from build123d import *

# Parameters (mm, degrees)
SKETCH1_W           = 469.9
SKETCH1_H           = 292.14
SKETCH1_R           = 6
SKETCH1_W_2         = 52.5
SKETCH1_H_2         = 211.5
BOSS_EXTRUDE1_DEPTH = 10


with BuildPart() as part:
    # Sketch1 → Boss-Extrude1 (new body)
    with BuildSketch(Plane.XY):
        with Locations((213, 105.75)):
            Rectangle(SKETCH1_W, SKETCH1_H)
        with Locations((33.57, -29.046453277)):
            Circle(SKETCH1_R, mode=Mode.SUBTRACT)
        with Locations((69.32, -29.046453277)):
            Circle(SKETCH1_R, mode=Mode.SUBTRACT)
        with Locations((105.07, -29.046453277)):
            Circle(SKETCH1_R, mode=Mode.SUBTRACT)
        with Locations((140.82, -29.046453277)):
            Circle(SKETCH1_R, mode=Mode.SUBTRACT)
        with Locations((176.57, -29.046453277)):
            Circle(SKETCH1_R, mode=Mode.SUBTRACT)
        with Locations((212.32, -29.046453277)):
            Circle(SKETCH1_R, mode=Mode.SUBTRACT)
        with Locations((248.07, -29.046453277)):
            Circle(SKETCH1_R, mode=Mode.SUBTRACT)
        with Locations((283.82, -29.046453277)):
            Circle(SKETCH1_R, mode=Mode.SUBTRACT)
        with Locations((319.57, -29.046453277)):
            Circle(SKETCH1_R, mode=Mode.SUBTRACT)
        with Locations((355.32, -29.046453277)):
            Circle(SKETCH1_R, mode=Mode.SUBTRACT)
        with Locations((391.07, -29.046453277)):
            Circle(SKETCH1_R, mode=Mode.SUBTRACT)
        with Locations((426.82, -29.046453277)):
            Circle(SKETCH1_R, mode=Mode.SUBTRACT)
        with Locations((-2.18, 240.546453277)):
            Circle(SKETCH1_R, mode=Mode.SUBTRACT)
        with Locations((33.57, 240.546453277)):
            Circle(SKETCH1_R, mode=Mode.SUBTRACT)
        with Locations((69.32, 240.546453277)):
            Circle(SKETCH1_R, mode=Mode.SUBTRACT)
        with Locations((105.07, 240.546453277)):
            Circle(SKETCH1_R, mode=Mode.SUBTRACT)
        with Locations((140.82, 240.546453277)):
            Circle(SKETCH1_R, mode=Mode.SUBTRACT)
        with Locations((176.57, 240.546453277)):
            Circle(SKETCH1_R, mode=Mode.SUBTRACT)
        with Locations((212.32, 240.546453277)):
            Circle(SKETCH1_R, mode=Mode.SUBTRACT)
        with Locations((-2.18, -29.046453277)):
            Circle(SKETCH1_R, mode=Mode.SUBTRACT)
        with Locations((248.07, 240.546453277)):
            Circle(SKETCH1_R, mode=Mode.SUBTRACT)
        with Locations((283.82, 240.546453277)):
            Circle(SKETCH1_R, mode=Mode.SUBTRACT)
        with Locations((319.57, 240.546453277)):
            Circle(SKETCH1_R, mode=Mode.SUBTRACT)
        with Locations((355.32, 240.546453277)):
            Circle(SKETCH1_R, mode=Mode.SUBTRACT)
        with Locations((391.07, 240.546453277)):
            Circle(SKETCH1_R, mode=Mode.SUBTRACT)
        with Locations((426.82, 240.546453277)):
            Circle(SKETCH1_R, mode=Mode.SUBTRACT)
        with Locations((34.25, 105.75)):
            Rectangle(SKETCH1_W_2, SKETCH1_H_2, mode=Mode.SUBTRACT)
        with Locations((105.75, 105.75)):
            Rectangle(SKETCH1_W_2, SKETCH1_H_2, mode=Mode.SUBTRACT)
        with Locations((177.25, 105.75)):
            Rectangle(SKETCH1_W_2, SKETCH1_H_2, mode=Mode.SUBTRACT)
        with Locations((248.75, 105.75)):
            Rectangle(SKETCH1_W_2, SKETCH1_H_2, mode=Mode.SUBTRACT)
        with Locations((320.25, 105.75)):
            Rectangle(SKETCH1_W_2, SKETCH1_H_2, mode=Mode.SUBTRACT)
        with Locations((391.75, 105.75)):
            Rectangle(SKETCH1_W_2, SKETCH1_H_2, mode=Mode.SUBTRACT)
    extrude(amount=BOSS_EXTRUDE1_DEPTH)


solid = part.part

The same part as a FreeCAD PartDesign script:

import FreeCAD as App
import Part
import Sketcher
from FreeCAD import Vector
Q = App.Units.Quantity

doc = App.newDocument("Part")
params = doc.addObject("Spreadsheet::Sheet", "Params")
for row, (alias, value) in enumerate([
    ("sketch1_diameter", "12 mm"),
    ("sketch1_width", "469.9 mm"),
    ("sketch1_width2", "52.5 mm"),
    ("sketch1_height", "211.5 mm"),
    ("sketch1_height2", "292.14 mm"),
    ("pad1_length", "10 mm"),
], start=1):
    params.set(f"A{row}", alias)
    params.set(f"B{row}", "=" + value)
    params.setAlias(f"B{row}", alias)

body = doc.addObject("PartDesign::Body", "Body")

# Sketch on XY plane
sketch1 = body.newObject("Sketcher::SketchObject", "Sketch")
sketch1.AttachmentSupport = (doc.getObject("XY_Plane"), [""])
sketch1.MapMode = "FlatFace"
sketch1.addGeometry(Part.LineSegment(Vector(-21.95, 251.82, 0), Vector(-21.95, -40.32, 0)), False)
sketch1.addGeometry(Part.LineSegment(Vector(-21.95, -40.32, 0), Vector(447.95, -40.32, 0)), False)
sketch1.addGeometry(Part.LineSegment(Vector(447.95, -40.32, 0), Vector(447.95, 251.82, 0)), False)
sketch1.addGeometry(Part.LineSegment(Vector(447.95, 251.82, 0), Vector(-21.95, 251.82, 0)), False)
sketch1.addGeometry(Part.Circle(Vector(-2.18, -29.046453, 0), Vector(0, 0, 1), 6), False)
sketch1.addGeometry(Part.Circle(Vector(33.57, -29.046453, 0), Vector(0, 0, 1), 6), False)
sketch1.addGeometry(Part.Circle(Vector(69.32, -29.046453, 0), Vector(0, 0, 1), 6), False)
sketch1.addGeometry(Part.Circle(Vector(105.07, -29.046453, 0), Vector(0, 0, 1), 6), False)
sketch1.addGeometry(Part.Circle(Vector(140.82, -29.046453, 0), Vector(0, 0, 1), 6), False)
sketch1.addGeometry(Part.Circle(Vector(176.57, -29.046453, 0), Vector(0, 0, 1), 6), False)
sketch1.addGeometry(Part.Circle(Vector(212.32, -29.046453, 0), Vector(0, 0, 1), 6), False)
sketch1.addGeometry(Part.Circle(Vector(248.07, -29.046453, 0), Vector(0, 0, 1), 6), False)
sketch1.addGeometry(Part.Circle(Vector(283.82, -29.046453, 0), Vector(0, 0, 1), 6), False)
sketch1.addGeometry(Part.Circle(Vector(319.57, -29.046453, 0), Vector(0, 0, 1), 6), False)
sketch1.addGeometry(Part.Circle(Vector(355.32, -29.046453, 0), Vector(0, 0, 1), 6), False)
sketch1.addGeometry(Part.Circle(Vector(391.07, -29.046453, 0), Vector(0, 0, 1), 6), False)
sketch1.addGeometry(Part.Circle(Vector(426.82, -29.046453, 0), Vector(0, 0, 1), 6), False)
sketch1.addGeometry(Part.LineSegment(Vector(60.5, 0, 0), Vector(8, 0, 0)), False)
sketch1.addGeometry(Part.LineSegment(Vector(8, 0, 0), Vector(8, 211.5, 0)), False)
sketch1.addGeometry(Part.LineSegment(Vector(8, 211.5, 0), Vector(60.5, 211.5, 0)), False)
sketch1.addGeometry(Part.LineSegment(Vector(60.5, 211.5, 0), Vector(60.5, 0, 0)), False)
sketch1.addGeometry(Part.LineSegment(Vector(132, 0, 0), Vector(79.5, 0, 0)), False)
sketch1.addGeometry(Part.LineSegment(Vector(79.5, 0, 0), Vector(79.5, 211.5, 0)), False)
sketch1.addGeometry(Part.LineSegment(Vector(79.5, 211.5, 0), Vector(132, 211.5, 0)), False)
sketch1.addGeometry(Part.LineSegment(Vector(132, 211.5, 0), Vector(132, 0, 0)), False)
sketch1.addGeometry(Part.LineSegment(Vector(203.5, 0, 0), Vector(151, 0, 0)), False)
sketch1.addGeometry(Part.LineSegment(Vector(151, 0, 0), Vector(151, 211.5, 0)), False)
sketch1.addGeometry(Part.LineSegment(Vector(151, 211.5, 0), Vector(203.5, 211.5, 0)), False)
sketch1.addGeometry(Part.LineSegment(Vector(203.5, 211.5, 0), Vector(203.5, 0, 0)), False)
sketch1.addGeometry(Part.Circle(Vector(-2.18, 240.546453, 0), Vector(0, 0, 1), 6), False)
sketch1.addGeometry(Part.Circle(Vector(33.57, 240.546453, 0), Vector(0, 0, 1), 6), False)
sketch1.addGeometry(Part.Circle(Vector(69.32, 240.546453, 0), Vector(0, 0, 1), 6), False)
sketch1.addGeometry(Part.Circle(Vector(105.07, 240.546453, 0), Vector(0, 0, 1), 6), False)
sketch1.addGeometry(Part.Circle(Vector(140.82, 240.546453, 0), Vector(0, 0, 1), 6), False)
sketch1.addGeometry(Part.Circle(Vector(176.57, 240.546453, 0), Vector(0, 0, 1), 6), False)
sketch1.addGeometry(Part.LineSegment(Vector(275, 0, 0), Vector(222.5, 0, 0)), False)
sketch1.addGeometry(Part.LineSegment(Vector(222.5, 0, 0), Vector(222.5, 211.5, 0)), False)
sketch1.addGeometry(Part.LineSegment(Vector(222.5, 211.5, 0), Vector(275, 211.5, 0)), False)
sketch1.addGeometry(Part.LineSegment(Vector(275, 211.5, 0), Vector(275, 0, 0)), False)
sketch1.addGeometry(Part.LineSegment(Vector(346.5, 0, 0), Vector(294, 0, 0)), False)
sketch1.addGeometry(Part.LineSegment(Vector(294, 0, 0), Vector(294, 211.5, 0)), False)
sketch1.addGeometry(Part.LineSegment(Vector(294, 211.5, 0), Vector(346.5, 211.5, 0)), False)
sketch1.addGeometry(Part.LineSegment(Vector(346.5, 211.5, 0), Vector(346.5, 0, 0)), False)
sketch1.addGeometry(Part.LineSegment(Vector(418, 0, 0), Vector(365.5, 0, 0)), False)
sketch1.addGeometry(Part.LineSegment(Vector(365.5, 0, 0), Vector(365.5, 211.5, 0)), False)
sketch1.addGeometry(Part.LineSegment(Vector(365.5, 211.5, 0), Vector(418, 211.5, 0)), False)
sketch1.addGeometry(Part.LineSegment(Vector(418, 211.5, 0), Vector(418, 0, 0)), False)
sketch1.addGeometry(Part.Circle(Vector(212.32, 240.546453, 0), Vector(0, 0, 1), 6), False)
sketch1.addGeometry(Part.Circle(Vector(248.07, 240.546453, 0), Vector(0, 0, 1), 6), False)
sketch1.addGeometry(Part.Circle(Vector(283.82, 240.546453, 0), Vector(0, 0, 1), 6), False)
sketch1.addGeometry(Part.Circle(Vector(319.57, 240.546453, 0), Vector(0, 0, 1), 6), False)
sketch1.addGeometry(Part.Circle(Vector(355.32, 240.546453, 0), Vector(0, 0, 1), 6), False)
sketch1.addGeometry(Part.Circle(Vector(391.07, 240.546453, 0), Vector(0, 0, 1), 6), False)
sketch1.addGeometry(Part.Circle(Vector(426.82, 240.546453, 0), Vector(0, 0, 1), 6), False)
sketch1.addConstraint(Sketcher.Constraint("Coincident", 0, 2, 1, 1))
sketch1.addConstraint(Sketcher.Constraint("Coincident", 1, 2, 2, 1))
sketch1.addConstraint(Sketcher.Constraint("Coincident", 2, 2, 3, 1))
sketch1.addConstraint(Sketcher.Constraint("Coincident", 3, 2, 0, 1))
sketch1.addConstraint(Sketcher.Constraint("Coincident", 17, 2, 18, 1))
sketch1.addConstraint(Sketcher.Constraint("Coincident", 18, 2, 19, 1))
sketch1.addConstraint(Sketcher.Constraint("Coincident", 19, 2, 20, 1))
sketch1.addConstraint(Sketcher.Constraint("Coincident", 20, 2, 17, 1))
sketch1.addConstraint(Sketcher.Constraint("Coincident", 21, 2, 22, 1))
sketch1.addConstraint(Sketcher.Constraint("Coincident", 22, 2, 23, 1))
sketch1.addConstraint(Sketcher.Constraint("Coincident", 23, 2, 24, 1))
sketch1.addConstraint(Sketcher.Constraint("Coincident", 24, 2, 21, 1))
sketch1.addConstraint(Sketcher.Constraint("Coincident", 25, 2, 26, 1))
sketch1.addConstraint(Sketcher.Constraint("Coincident", 26, 2, 27, 1))
sketch1.addConstraint(Sketcher.Constraint("Coincident", 27, 2, 28, 1))
sketch1.addConstraint(Sketcher.Constraint("Coincident", 28, 2, 25, 1))
sketch1.addConstraint(Sketcher.Constraint("Coincident", 35, 2, 36, 1))
sketch1.addConstraint(Sketcher.Constraint("Coincident", 36, 2, 37, 1))
sketch1.addConstraint(Sketcher.Constraint("Coincident", 37, 2, 38, 1))
sketch1.addConstraint(Sketcher.Constraint("Coincident", 38, 2, 35, 1))
sketch1.addConstraint(Sketcher.Constraint("Coincident", 39, 2, 40, 1))
sketch1.addConstraint(Sketcher.Constraint("Coincident", 40, 2, 41, 1))
sketch1.addConstraint(Sketcher.Constraint("Coincident", 41, 2, 42, 1))
sketch1.addConstraint(Sketcher.Constraint("Coincident", 42, 2, 39, 1))
sketch1.addConstraint(Sketcher.Constraint("Coincident", 43, 2, 44, 1))
sketch1.addConstraint(Sketcher.Constraint("Coincident", 44, 2, 45, 1))
sketch1.addConstraint(Sketcher.Constraint("Coincident", 45, 2, 46, 1))
sketch1.addConstraint(Sketcher.Constraint("Coincident", 46, 2, 43, 1))
sketch1.addConstraint(Sketcher.Constraint("Vertical", 0))
sketch1.addConstraint(Sketcher.Constraint("Horizontal", 1))
sketch1.addConstraint(Sketcher.Constraint("Vertical", 2))
sketch1.addConstraint(Sketcher.Constraint("Horizontal", 3))
sketch1.addConstraint(Sketcher.Constraint("Horizontal", 17))
sketch1.addConstraint(Sketcher.Constraint("Vertical", 18))
sketch1.addConstraint(Sketcher.Constraint("Horizontal", 19))
sketch1.addConstraint(Sketcher.Constraint("Vertical", 20))
sketch1.addConstraint(Sketcher.Constraint("Horizontal", 21))
sketch1.addConstraint(Sketcher.Constraint("Vertical", 22))
sketch1.addConstraint(Sketcher.Constraint("Horizontal", 23))
sketch1.addConstraint(Sketcher.Constraint("Vertical", 24))
sketch1.addConstraint(Sketcher.Constraint("Horizontal", 25))
sketch1.addConstraint(Sketcher.Constraint("Vertical", 26))
sketch1.addConstraint(Sketcher.Constraint("Horizontal", 27))
sketch1.addConstraint(Sketcher.Constraint("Vertical", 28))
sketch1.addConstraint(Sketcher.Constraint("Horizontal", 35))
sketch1.addConstraint(Sketcher.Constraint("Vertical", 36))
sketch1.addConstraint(Sketcher.Constraint("Horizontal", 37))
sketch1.addConstraint(Sketcher.Constraint("Vertical", 38))
sketch1.addConstraint(Sketcher.Constraint("Horizontal", 39))
sketch1.addConstraint(Sketcher.Constraint("Vertical", 40))
sketch1.addConstraint(Sketcher.Constraint("Horizontal", 41))
sketch1.addConstraint(Sketcher.Constraint("Vertical", 42))
sketch1.addConstraint(Sketcher.Constraint("Horizontal", 43))
sketch1.addConstraint(Sketcher.Constraint("Vertical", 44))
sketch1.addConstraint(Sketcher.Constraint("Horizontal", 45))
sketch1.addConstraint(Sketcher.Constraint("Vertical", 46))
sketch1.addConstraint(Sketcher.Constraint("Equal", 4, 5))
sketch1.addConstraint(Sketcher.Constraint("Equal", 5, 6))
sketch1.addConstraint(Sketcher.Constraint("Equal", 6, 7))
sketch1.addConstraint(Sketcher.Constraint("Equal", 7, 8))
sketch1.addConstraint(Sketcher.Constraint("Equal", 8, 9))
sketch1.addConstraint(Sketcher.Constraint("Equal", 9, 10))
sketch1.addConstraint(Sketcher.Constraint("Equal", 10, 11))
sketch1.addConstraint(Sketcher.Constraint("Equal", 11, 12))
sketch1.addConstraint(Sketcher.Constraint("Equal", 12, 13))
sketch1.addConstraint(Sketcher.Constraint("Equal", 13, 14))
sketch1.addConstraint(Sketcher.Constraint("Equal", 14, 15))
sketch1.addConstraint(Sketcher.Constraint("Equal", 15, 16))
sketch1.addConstraint(Sketcher.Constraint("Equal", 16, 29))
sketch1.addConstraint(Sketcher.Constraint("Equal", 29, 30))
sketch1.addConstraint(Sketcher.Constraint("Equal", 30, 31))
sketch1.addConstraint(Sketcher.Constraint("Equal", 31, 32))
sketch1.addConstraint(Sketcher.Constraint("Equal", 32, 33))
sketch1.addConstraint(Sketcher.Constraint("Equal", 33, 34))
sketch1.addConstraint(Sketcher.Constraint("Equal", 34, 47))
sketch1.addConstraint(Sketcher.Constraint("Equal", 47, 48))
sketch1.addConstraint(Sketcher.Constraint("Equal", 48, 49))
sketch1.addConstraint(Sketcher.Constraint("Equal", 49, 50))
sketch1.addConstraint(Sketcher.Constraint("Equal", 50, 51))
sketch1.addConstraint(Sketcher.Constraint("Equal", 51, 52))
sketch1.addConstraint(Sketcher.Constraint("Equal", 52, 53))
sketch1.addConstraint(Sketcher.Constraint("PointOnObject", 17, 2, -1))
sketch1.addConstraint(Sketcher.Constraint("PointOnObject", 21, 2, -1))
sketch1.addConstraint(Sketcher.Constraint("PointOnObject", 25, 2, -1))
sketch1.addConstraint(Sketcher.Constraint("PointOnObject", 35, 2, -1))
sketch1.addConstraint(Sketcher.Constraint("PointOnObject", 39, 2, -1))
sketch1.addConstraint(Sketcher.Constraint("PointOnObject", 43, 2, -1))
sketch1.addConstraint(Sketcher.Constraint("Horizontal", 4, 3, 5, 3))
sketch1.addConstraint(Sketcher.Constraint("Horizontal", 5, 3, 6, 3))
sketch1.addConstraint(Sketcher.Constraint("Horizontal", 6, 3, 7, 3))
sketch1.addConstraint(Sketcher.Constraint("Horizontal", 7, 3, 8, 3))
sketch1.addConstraint(Sketcher.Constraint("Horizontal", 8, 3, 9, 3))
sketch1.addConstraint(Sketcher.Constraint("Horizontal", 9, 3, 10, 3))
sketch1.addConstraint(Sketcher.Constraint("Horizontal", 10, 3, 11, 3))
sketch1.addConstraint(Sketcher.Constraint("Horizontal", 11, 3, 12, 3))
sketch1.addConstraint(Sketcher.Constraint("Horizontal", 12, 3, 13, 3))
sketch1.addConstraint(Sketcher.Constraint("Horizontal", 13, 3, 14, 3))
sketch1.addConstraint(Sketcher.Constraint("Horizontal", 14, 3, 15, 3))
sketch1.addConstraint(Sketcher.Constraint("Horizontal", 15, 3, 16, 3))
sketch1.addConstraint(Sketcher.Constraint("Horizontal", 29, 3, 30, 3))
sketch1.addConstraint(Sketcher.Constraint("Horizontal", 30, 3, 31, 3))
sketch1.addConstraint(Sketcher.Constraint("Horizontal", 31, 3, 32, 3))
sketch1.addConstraint(Sketcher.Constraint("Horizontal", 32, 3, 33, 3))
sketch1.addConstraint(Sketcher.Constraint("Horizontal", 33, 3, 34, 3))
sketch1.addConstraint(Sketcher.Constraint("Horizontal", 34, 3, 47, 3))
sketch1.addConstraint(Sketcher.Constraint("Horizontal", 47, 3, 48, 3))
sketch1.addConstraint(Sketcher.Constraint("Horizontal", 48, 3, 49, 3))
sketch1.addConstraint(Sketcher.Constraint("Horizontal", 49, 3, 50, 3))
sketch1.addConstraint(Sketcher.Constraint("Horizontal", 50, 3, 51, 3))
sketch1.addConstraint(Sketcher.Constraint("Horizontal", 51, 3, 52, 3))
sketch1.addConstraint(Sketcher.Constraint("Horizontal", 52, 3, 53, 3))
sketch1.addConstraint(Sketcher.Constraint("Horizontal", 19, 2, 22, 2))
sketch1.addConstraint(Sketcher.Constraint("Horizontal", 23, 2, 26, 2))
sketch1.addConstraint(Sketcher.Constraint("Horizontal", 27, 2, 36, 2))
sketch1.addConstraint(Sketcher.Constraint("Horizontal", 37, 2, 40, 2))
sketch1.addConstraint(Sketcher.Constraint("Horizontal", 41, 2, 44, 2))
sketch1.addConstraint(Sketcher.Constraint("Vertical", 4, 3, 29, 3))
sketch1.addConstraint(Sketcher.Constraint("Vertical", 5, 3, 30, 3))
sketch1.addConstraint(Sketcher.Constraint("Vertical", 6, 3, 31, 3))
sketch1.addConstraint(Sketcher.Constraint("Vertical", 7, 3, 32, 3))
sketch1.addConstraint(Sketcher.Constraint("Vertical", 8, 3, 33, 3))
sketch1.addConstraint(Sketcher.Constraint("Vertical", 9, 3, 34, 3))
sketch1.addConstraint(Sketcher.Constraint("Vertical", 10, 3, 47, 3))
sketch1.addConstraint(Sketcher.Constraint("Vertical", 11, 3, 48, 3))
sketch1.addConstraint(Sketcher.Constraint("Vertical", 12, 3, 49, 3))
sketch1.addConstraint(Sketcher.Constraint("Vertical", 13, 3, 50, 3))
sketch1.addConstraint(Sketcher.Constraint("Vertical", 14, 3, 51, 3))
sketch1.addConstraint(Sketcher.Constraint("Vertical", 15, 3, 52, 3))
sketch1.addConstraint(Sketcher.Constraint("Vertical", 16, 3, 53, 3))
sketch1.addConstraint(Sketcher.Constraint("Equal", 19, 21))
sketch1.addConstraint(Sketcher.Constraint("Equal", 23, 25))
sketch1.addConstraint(Sketcher.Constraint("Equal", 27, 35))
sketch1.addConstraint(Sketcher.Constraint("Equal", 37, 39))
sketch1.addConstraint(Sketcher.Constraint("Equal", 41, 43))
sketch1.addConstraint(Sketcher.Constraint("Diameter", 4, Q("12 mm")))
sketch1.addConstraint(Sketcher.Constraint("DistanceX", 1, 1, 1, 2, Q("469.9 mm")))
sketch1.addConstraint(Sketcher.Constraint("DistanceX", 17, 2, 17, 1, Q("52.5 mm")))
sketch1.addConstraint(Sketcher.Constraint("DistanceY", 18, 1, 18, 2, Q("211.5 mm")))
sketch1.addConstraint(Sketcher.Constraint("DistanceX", -1, 1, 17, 2, Q("8 mm")))
sketch1.addConstraint(Sketcher.Constraint("DistanceX", -1, 1, 23, 2, Q("132 mm")))
sketch1.addConstraint(Sketcher.Constraint("DistanceX", -1, 1, 25, 2, Q("151 mm")))
sketch1.addConstraint(Sketcher.Constraint("DistanceX", -1, 1, 37, 2, Q("275 mm")))
sketch1.addConstraint(Sketcher.Constraint("DistanceX", -1, 1, 39, 2, Q("294 mm")))
sketch1.addConstraint(Sketcher.Constraint("DistanceX", -1, 1, 45, 2, Q("418 mm")))
sketch1.addConstraint(Sketcher.Constraint("DistanceX", 4, 3, 8, 3, Q("143 mm")))
sketch1.addConstraint(Sketcher.Constraint("DistanceX", 5, 3, 9, 3, Q("143 mm")))
sketch1.addConstraint(Sketcher.Constraint("DistanceX", 6, 3, 10, 3, Q("143 mm")))
sketch1.addConstraint(Sketcher.Constraint("DistanceX", 7, 3, 11, 3, Q("143 mm")))
sketch1.addConstraint(Sketcher.Constraint("DistanceX", 8, 3, 12, 3, Q("143 mm")))
sketch1.addConstraint(Sketcher.Constraint("DistanceX", 9, 3, 13, 3, Q("143 mm")))
sketch1.addConstraint(Sketcher.Constraint("DistanceX", 10, 3, 14, 3, Q("143 mm")))
sketch1.addConstraint(Sketcher.Constraint("DistanceX", 11, 3, 15, 3, Q("143 mm")))
sketch1.addConstraint(Sketcher.Constraint("DistanceX", 12, 3, 16, 3, Q("143 mm")))
sketch1.addConstraint(Sketcher.Constraint("DistanceY", 0, 2, 0, 1, Q("292.14 mm")))
sketch1.addConstraint(Sketcher.Constraint("DistanceX", 4, 3, 6, 3, Q("71.5 mm")))
sketch1.addConstraint(Sketcher.Constraint("DistanceX", 5, 3, 7, 3, Q("71.5 mm")))
sketch1.addConstraint(Sketcher.Constraint("DistanceX", 4, 3, -1, 1, Q("2.18 mm")))
sketch1.addConstraint(Sketcher.Constraint("DistanceX", -1, 1, 5, 3, Q("33.57 mm")))
sketch1.addConstraint(Sketcher.Constraint("DistanceX", 0, 2, -1, 1, Q("21.95 mm")))
sketch1.addConstraint(Sketcher.Constraint("DistanceY", 0, 2, -1, 1, Q("40.32 mm")))
sketch1.addConstraint(Sketcher.Constraint("DistanceY", 4, 3, -1, 1, Q("29.046453 mm")))
sketch1.addConstraint(Sketcher.Constraint("DistanceY", -1, 1, 29, 3, Q("240.546453 mm")))
sketch1.setExpression("Constraints[134]", "Params.sketch1_diameter")
sketch1.setExpression("Constraints[135]", "Params.sketch1_width")
sketch1.setExpression("Constraints[136]", "Params.sketch1_width2")
sketch1.setExpression("Constraints[137]", "Params.sketch1_height")
sketch1.setExpression("Constraints[153]", "Params.sketch1_height2")
pad1 = body.newObject("PartDesign::Pad", "Pad")
pad1.Profile = sketch1
pad1.setExpression("Length", "Params.pad1_length")

doc.recompute()
